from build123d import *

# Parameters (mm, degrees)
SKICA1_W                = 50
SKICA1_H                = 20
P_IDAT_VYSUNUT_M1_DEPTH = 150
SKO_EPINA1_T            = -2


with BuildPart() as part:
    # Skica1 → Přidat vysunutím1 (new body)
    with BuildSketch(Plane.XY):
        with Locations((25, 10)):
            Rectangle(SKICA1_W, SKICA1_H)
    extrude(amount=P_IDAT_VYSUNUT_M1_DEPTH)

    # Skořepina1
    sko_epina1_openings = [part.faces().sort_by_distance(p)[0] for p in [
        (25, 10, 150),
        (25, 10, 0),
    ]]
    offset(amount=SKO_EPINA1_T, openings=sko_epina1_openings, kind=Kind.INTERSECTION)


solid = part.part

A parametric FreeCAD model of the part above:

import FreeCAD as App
import Part
import Sketcher

V = App.Vector
Q = App.Units.Quantity


def faces_at(feature, points):
    """Names of the faces that lie closest to the given points."""
    faces = feature.Shape.Faces
    near = lambda p: min(range(len(faces)), key=lambda i: faces[i].distToShape(Part.Vertex(*p))[0])
    return sorted({f"Face{near(p) + 1}" for p in points})

doc = App.newDocument("Part")
body = doc.addObject("PartDesign::Body", "Body")

# Sketch on XY plane
sketch1 = body.newObject("Sketcher::SketchObject", "Sketch")
sketch1.AttachmentSupport = (doc.getObject("XY_Plane"), [""])
sketch1.MapMode = "FlatFace"
sketch1.addGeometry(Part.LineSegment(V(0, 20, 0), V(0, 0, 0)), False)
sketch1.addGeometry(Part.LineSegment(V(0, 0, 0), V(50, 0, 0)), False)
sketch1.addGeometry(Part.LineSegment(V(50, 0, 0), V(50, 20, 0)), False)
sketch1.addGeometry(Part.LineSegment(V(50, 20, 0), V(0, 20, 0)), False)
sketch1.addConstraint(Sketcher.Constraint("Coincident", 0, 2, 1, 1))
sketch1.addConstraint(Sketcher.Constraint("Coincident", 1, 2, 2, 1))
sketch1.addConstraint(Sketcher.Constraint("Coincident", 2, 2, 3, 1))
sketch1.addConstraint(Sketcher.Constraint("Coincident", 3, 2, 0, 1))
sketch1.addConstraint(Sketcher.Constraint("Vertical", 0))
sketch1.addConstraint(Sketcher.Constraint("Horizontal", 1))
sketch1.addConstraint(Sketcher.Constraint("Vertical", 2))
sketch1.addConstraint(Sketcher.Constraint("Horizontal", 3))
sketch1.addConstraint(Sketcher.Constraint("Coincident", 0, 2, -1, 1))
sketch1.addConstraint(Sketcher.Constraint("DistanceX", 1, 1, 1, 2, Q("50 mm")))
sketch1.addConstraint(Sketcher.Constraint("DistanceY", 0, 2, 0, 1, Q("20 mm")))
pad1 = body.newObject("PartDesign::Pad", "Pad")
pad1.Profile = sketch1
pad1.Length = 150
doc.recompute()

thickness = body.newObject("PartDesign::Thickness", "Thickness")
thickness.Base = (pad1, faces_at(pad1, [(25, 10, 150), (25, 10, 0)]))
thickness.Value = 2
thickness.Reversed = True
thickness.Join = "Intersection"

doc.recompute()
